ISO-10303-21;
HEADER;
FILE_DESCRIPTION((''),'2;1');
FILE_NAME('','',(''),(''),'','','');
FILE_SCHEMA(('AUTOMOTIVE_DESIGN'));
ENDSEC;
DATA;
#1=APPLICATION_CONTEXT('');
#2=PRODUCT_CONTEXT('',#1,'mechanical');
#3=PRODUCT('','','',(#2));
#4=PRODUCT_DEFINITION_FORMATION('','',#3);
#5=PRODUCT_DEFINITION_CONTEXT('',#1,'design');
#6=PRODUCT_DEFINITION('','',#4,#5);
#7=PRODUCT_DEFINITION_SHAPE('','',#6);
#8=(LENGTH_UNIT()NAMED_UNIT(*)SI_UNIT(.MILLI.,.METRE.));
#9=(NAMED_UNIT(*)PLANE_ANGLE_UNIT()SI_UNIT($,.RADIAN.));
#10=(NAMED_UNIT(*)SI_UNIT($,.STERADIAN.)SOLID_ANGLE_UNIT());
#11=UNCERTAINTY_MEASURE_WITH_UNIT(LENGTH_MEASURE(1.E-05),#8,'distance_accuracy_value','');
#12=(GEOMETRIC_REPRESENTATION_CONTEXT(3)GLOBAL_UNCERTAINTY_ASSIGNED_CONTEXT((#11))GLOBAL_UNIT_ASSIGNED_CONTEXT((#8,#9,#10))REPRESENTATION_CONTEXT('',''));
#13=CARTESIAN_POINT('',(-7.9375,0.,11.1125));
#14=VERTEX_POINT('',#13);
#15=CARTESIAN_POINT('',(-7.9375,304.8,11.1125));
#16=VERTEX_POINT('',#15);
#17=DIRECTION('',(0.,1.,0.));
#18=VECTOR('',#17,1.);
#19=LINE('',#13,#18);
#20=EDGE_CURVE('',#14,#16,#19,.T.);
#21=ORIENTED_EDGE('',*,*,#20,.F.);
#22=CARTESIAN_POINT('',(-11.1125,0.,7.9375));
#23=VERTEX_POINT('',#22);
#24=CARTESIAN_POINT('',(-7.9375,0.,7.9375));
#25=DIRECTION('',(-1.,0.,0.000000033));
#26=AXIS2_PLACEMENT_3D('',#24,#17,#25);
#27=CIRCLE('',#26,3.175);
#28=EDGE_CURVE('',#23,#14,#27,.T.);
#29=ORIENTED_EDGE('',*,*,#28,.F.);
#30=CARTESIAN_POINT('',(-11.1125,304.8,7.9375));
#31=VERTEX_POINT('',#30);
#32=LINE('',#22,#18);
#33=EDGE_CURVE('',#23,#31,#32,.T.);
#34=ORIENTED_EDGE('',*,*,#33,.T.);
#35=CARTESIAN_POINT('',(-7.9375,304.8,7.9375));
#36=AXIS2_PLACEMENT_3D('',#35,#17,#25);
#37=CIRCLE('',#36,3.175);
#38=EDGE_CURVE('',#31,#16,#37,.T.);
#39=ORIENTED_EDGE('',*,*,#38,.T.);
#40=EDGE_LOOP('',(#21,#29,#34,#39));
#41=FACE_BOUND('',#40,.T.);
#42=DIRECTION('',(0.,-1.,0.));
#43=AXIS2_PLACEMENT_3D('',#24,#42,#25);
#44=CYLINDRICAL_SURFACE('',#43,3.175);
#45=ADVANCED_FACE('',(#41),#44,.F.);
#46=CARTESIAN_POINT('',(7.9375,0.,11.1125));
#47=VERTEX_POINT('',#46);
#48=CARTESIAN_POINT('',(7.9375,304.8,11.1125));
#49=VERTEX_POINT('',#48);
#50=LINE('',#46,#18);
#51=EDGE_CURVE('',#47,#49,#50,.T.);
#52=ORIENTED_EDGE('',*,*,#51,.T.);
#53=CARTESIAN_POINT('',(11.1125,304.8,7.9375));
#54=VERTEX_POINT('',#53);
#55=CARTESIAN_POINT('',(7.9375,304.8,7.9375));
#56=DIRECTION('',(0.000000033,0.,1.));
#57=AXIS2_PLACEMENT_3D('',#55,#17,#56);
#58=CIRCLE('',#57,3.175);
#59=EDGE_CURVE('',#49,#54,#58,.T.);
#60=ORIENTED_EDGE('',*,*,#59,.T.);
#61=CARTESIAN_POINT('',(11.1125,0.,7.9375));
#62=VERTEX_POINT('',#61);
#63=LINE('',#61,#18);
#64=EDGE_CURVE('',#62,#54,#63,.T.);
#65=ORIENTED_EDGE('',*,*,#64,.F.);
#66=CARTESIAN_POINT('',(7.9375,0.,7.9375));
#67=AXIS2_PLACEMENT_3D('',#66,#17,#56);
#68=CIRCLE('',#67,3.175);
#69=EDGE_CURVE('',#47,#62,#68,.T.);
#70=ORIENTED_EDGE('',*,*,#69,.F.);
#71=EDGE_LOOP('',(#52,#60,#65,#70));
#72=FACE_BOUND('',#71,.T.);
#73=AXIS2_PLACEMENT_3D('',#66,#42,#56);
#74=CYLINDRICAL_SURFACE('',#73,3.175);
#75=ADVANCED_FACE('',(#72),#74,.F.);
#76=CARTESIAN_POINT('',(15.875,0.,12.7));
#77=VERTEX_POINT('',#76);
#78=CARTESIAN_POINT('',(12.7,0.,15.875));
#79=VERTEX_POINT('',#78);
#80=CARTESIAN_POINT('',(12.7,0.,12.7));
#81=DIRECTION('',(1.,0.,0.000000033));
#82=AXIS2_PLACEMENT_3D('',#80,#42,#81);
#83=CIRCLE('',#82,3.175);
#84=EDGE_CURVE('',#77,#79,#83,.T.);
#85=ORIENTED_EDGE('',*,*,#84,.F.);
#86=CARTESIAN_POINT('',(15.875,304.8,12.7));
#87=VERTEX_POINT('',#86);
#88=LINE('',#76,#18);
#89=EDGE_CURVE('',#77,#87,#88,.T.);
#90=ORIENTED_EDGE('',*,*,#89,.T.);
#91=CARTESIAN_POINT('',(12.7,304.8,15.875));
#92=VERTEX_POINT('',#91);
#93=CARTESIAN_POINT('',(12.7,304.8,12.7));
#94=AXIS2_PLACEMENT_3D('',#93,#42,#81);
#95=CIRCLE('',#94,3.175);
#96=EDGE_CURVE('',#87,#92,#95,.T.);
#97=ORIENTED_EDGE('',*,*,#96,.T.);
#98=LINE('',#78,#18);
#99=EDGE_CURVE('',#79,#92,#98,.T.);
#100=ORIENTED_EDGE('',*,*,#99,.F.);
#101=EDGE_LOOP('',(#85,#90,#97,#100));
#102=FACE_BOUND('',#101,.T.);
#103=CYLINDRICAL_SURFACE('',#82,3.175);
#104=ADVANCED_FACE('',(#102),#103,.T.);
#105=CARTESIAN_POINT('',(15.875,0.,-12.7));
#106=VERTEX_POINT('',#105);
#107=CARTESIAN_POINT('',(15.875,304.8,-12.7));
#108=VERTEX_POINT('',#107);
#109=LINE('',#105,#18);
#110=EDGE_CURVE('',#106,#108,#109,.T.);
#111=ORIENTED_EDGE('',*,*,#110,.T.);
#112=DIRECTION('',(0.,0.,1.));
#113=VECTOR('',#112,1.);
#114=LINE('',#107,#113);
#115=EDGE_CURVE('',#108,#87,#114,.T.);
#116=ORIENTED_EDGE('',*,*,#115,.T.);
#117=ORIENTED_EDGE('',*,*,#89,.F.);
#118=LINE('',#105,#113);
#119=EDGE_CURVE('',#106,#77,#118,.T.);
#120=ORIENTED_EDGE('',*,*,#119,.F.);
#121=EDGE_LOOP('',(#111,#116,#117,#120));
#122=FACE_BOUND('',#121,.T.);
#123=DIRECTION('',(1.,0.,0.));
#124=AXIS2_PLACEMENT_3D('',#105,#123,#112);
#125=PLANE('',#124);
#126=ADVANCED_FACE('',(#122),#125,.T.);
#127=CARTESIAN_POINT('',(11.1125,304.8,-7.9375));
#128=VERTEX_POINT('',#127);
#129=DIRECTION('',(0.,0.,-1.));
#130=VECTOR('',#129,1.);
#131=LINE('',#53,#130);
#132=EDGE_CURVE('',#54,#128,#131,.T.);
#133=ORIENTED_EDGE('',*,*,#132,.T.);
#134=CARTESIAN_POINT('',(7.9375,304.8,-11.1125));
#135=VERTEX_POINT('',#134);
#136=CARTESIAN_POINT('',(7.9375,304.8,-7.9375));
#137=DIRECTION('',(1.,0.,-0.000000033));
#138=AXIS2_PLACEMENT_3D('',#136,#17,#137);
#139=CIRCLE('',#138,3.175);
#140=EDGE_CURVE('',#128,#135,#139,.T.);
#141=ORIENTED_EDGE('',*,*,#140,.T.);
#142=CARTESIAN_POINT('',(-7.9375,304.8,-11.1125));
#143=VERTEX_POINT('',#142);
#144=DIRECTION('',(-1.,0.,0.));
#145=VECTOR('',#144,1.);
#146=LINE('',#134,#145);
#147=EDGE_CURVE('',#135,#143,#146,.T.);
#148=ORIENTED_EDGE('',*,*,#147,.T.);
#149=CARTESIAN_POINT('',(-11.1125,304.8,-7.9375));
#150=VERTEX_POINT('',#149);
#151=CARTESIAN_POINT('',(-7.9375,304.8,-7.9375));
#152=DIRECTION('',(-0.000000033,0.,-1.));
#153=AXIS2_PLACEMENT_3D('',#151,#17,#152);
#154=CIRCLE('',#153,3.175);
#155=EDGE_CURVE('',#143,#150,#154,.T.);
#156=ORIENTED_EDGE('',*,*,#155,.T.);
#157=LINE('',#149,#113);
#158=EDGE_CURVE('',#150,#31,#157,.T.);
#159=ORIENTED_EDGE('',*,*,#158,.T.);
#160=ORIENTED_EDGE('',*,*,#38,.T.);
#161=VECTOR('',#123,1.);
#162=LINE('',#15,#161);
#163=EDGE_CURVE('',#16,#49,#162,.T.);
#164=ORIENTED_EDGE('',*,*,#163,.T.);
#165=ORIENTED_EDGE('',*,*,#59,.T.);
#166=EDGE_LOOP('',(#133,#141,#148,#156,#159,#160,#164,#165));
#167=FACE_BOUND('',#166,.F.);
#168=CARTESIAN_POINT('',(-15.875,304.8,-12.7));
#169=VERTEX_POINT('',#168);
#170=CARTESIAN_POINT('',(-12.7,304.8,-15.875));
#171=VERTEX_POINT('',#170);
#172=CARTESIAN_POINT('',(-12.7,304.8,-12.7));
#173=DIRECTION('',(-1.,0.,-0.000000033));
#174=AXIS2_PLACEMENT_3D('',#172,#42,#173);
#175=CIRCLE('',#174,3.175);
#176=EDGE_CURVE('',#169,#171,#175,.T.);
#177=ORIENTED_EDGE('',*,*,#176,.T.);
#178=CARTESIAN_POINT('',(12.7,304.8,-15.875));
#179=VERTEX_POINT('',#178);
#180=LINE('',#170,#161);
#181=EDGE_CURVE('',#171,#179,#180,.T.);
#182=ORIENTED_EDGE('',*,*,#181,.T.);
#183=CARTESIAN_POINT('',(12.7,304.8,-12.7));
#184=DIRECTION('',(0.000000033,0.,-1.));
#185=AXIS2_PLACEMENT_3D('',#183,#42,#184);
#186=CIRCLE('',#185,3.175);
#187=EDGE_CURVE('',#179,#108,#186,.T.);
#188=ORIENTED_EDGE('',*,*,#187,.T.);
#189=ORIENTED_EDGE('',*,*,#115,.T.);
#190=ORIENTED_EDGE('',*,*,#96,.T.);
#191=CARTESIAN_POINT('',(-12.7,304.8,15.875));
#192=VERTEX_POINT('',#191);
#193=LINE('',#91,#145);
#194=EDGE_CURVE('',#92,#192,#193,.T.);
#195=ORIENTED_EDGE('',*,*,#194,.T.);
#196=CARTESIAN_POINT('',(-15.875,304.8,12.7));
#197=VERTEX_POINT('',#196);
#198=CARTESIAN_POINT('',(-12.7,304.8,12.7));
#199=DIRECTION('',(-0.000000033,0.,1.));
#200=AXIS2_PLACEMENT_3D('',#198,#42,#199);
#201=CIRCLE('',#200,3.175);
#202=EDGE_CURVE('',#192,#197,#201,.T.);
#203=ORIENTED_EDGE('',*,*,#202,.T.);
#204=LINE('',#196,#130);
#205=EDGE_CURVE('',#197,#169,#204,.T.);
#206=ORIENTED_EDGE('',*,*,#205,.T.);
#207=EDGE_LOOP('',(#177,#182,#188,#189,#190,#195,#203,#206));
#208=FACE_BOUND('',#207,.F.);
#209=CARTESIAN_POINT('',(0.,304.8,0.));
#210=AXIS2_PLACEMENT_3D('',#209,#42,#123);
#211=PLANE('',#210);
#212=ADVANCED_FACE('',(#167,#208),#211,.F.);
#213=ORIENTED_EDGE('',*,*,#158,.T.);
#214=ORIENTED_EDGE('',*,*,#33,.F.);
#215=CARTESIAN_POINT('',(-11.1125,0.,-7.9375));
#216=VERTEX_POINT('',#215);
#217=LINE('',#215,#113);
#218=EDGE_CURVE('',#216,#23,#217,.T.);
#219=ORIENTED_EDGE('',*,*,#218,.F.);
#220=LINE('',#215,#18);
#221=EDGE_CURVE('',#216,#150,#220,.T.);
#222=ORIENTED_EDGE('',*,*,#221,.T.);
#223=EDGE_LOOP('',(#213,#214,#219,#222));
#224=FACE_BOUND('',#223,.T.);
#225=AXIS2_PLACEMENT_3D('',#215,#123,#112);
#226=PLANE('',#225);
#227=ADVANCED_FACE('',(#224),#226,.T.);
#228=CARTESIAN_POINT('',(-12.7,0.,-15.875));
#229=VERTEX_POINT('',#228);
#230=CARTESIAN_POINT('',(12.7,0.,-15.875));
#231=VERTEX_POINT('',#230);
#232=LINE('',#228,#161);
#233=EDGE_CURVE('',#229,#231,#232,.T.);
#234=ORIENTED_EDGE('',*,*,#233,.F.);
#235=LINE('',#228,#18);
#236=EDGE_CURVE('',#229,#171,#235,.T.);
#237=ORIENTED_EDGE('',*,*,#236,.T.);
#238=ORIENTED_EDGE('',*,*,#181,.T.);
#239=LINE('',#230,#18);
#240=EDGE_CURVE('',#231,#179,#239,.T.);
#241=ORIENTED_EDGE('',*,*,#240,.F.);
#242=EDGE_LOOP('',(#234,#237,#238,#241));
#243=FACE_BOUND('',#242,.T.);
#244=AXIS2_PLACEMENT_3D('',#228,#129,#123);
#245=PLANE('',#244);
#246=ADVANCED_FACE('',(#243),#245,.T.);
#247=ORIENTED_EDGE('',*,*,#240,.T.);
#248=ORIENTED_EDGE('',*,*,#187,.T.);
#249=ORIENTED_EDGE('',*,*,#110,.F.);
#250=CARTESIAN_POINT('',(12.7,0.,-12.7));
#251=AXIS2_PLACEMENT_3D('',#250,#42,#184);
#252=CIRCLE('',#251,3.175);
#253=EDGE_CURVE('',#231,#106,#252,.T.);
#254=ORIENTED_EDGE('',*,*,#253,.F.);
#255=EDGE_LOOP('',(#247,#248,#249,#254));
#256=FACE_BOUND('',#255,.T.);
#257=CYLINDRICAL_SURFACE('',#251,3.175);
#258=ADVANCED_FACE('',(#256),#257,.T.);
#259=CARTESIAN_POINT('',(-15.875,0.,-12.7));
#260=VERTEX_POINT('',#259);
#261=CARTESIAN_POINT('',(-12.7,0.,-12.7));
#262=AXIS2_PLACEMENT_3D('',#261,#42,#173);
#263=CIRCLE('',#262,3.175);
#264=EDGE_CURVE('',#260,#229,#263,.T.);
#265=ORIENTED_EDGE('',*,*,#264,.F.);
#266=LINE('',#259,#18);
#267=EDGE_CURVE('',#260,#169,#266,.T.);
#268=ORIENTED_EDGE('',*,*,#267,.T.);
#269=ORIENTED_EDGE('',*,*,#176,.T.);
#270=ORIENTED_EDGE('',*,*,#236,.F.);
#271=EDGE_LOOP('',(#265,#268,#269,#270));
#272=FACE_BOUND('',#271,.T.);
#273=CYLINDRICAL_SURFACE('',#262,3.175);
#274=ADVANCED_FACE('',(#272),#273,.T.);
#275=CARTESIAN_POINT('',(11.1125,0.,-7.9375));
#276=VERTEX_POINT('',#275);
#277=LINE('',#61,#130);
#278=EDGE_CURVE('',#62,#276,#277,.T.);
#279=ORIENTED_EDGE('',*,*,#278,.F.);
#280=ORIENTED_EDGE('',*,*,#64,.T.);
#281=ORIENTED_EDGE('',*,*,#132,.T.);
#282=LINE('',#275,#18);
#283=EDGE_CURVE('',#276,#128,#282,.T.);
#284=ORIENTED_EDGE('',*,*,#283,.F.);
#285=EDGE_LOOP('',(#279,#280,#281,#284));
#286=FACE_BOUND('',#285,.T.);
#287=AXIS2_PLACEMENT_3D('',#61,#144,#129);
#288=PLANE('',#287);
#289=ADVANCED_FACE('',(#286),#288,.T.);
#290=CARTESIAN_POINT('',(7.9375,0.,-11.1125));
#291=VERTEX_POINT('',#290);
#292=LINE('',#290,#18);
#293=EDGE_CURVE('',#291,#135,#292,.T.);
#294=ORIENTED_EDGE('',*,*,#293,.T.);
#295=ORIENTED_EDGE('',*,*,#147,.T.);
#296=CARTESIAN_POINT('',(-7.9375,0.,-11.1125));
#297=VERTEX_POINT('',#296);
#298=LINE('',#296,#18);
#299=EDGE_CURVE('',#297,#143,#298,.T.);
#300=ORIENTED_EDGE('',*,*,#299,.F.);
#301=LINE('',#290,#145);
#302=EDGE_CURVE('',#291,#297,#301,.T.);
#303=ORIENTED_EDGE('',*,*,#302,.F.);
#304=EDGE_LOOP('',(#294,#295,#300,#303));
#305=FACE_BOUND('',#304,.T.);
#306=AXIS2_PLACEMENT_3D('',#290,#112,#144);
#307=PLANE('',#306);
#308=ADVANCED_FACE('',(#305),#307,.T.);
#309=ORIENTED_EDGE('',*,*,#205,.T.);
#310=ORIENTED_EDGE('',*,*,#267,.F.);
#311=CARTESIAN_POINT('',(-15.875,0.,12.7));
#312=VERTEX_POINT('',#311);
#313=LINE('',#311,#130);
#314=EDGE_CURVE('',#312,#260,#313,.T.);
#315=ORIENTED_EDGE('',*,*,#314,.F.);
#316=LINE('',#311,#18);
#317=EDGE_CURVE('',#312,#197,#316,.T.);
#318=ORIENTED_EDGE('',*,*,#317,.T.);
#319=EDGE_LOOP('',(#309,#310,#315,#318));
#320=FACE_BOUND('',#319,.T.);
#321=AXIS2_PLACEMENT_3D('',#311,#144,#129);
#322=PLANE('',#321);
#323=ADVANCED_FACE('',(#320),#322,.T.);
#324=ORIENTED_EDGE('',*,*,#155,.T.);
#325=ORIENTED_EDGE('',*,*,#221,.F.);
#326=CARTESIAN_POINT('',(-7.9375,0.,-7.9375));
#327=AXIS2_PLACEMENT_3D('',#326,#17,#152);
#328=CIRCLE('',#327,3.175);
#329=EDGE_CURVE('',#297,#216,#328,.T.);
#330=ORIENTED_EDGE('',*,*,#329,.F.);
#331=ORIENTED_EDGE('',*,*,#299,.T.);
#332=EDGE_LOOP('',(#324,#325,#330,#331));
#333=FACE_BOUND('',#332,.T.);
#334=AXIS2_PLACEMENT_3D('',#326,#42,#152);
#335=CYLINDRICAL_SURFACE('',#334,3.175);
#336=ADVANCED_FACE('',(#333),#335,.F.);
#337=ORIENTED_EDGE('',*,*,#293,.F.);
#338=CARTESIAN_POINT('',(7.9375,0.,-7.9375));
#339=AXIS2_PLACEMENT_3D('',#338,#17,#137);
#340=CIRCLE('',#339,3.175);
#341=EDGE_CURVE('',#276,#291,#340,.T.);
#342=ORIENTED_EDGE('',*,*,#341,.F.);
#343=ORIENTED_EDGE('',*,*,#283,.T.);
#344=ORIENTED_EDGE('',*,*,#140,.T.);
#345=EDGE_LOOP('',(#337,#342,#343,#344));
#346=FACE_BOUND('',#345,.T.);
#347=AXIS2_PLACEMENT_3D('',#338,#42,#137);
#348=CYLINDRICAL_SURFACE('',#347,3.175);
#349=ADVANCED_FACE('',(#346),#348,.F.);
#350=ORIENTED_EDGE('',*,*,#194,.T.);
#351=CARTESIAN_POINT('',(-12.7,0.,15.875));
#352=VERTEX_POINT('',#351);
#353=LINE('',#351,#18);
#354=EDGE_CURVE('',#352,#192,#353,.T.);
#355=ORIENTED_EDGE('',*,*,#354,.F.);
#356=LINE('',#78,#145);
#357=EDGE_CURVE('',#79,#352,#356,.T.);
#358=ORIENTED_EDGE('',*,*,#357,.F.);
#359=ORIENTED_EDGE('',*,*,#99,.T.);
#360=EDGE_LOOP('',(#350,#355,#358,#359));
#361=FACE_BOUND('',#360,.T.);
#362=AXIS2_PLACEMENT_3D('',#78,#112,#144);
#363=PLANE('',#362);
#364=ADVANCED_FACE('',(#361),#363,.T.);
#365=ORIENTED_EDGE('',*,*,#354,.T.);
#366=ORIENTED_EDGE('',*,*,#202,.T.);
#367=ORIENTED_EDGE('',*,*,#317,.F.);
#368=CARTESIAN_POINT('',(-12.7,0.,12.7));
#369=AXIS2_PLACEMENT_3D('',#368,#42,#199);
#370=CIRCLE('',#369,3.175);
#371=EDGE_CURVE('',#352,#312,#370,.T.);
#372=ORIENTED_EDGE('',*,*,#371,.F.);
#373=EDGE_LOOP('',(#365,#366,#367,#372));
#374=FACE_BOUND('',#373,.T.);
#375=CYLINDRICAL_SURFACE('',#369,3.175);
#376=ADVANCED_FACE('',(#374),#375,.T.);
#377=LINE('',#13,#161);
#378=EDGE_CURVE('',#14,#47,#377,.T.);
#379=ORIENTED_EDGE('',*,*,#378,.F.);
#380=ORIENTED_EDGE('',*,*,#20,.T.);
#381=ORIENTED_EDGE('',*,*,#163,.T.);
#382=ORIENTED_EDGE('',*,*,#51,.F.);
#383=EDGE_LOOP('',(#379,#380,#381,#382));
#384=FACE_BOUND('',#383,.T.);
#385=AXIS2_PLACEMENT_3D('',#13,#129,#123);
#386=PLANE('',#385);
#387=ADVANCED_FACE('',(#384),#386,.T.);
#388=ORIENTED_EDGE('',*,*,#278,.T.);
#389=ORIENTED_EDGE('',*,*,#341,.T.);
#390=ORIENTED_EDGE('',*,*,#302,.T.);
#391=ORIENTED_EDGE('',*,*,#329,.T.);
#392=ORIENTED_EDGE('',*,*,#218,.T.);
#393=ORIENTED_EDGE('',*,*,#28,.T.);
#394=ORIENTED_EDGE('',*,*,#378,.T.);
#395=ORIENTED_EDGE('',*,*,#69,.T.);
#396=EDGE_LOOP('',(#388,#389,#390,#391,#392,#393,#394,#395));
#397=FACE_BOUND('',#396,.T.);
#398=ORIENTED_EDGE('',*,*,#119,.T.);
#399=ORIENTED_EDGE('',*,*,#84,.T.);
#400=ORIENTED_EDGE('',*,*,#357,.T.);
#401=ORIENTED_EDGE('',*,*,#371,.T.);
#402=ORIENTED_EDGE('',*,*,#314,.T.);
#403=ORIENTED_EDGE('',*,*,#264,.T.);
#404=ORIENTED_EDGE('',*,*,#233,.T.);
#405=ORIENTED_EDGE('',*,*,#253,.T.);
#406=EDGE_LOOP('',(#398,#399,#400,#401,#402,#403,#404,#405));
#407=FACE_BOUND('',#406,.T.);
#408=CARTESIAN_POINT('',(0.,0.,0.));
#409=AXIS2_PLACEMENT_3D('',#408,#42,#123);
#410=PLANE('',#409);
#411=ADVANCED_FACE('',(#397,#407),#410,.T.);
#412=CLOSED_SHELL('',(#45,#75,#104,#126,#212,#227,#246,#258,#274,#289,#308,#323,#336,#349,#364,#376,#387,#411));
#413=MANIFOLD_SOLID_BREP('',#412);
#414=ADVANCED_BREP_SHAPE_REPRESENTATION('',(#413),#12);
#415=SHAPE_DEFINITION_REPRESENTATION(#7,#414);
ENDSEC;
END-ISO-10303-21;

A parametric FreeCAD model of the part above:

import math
import FreeCAD as App
import Part
import Sketcher
Q = App.Units.Quantity

doc = App.newDocument("Part")
body = doc.addObject("PartDesign::Body", "Body")

sketch1 = body.newObject("Sketcher::SketchObject", "Sketch")
sketch1.AttachmentSupport = (doc.getObject("XZ_Plane"), [""])
sketch1.MapMode = "FlatFace"
sketch1.addGeometry([
    Part.ArcOfCircle(Part.Circle(App.Vector(12.7, 12.7, 0), App.Vector(0, 0, 1), 3.2), math.radians(0), math.radians(90)),
    Part.LineSegment(App.Vector(12.7, 15.9, 0), App.Vector(-12.7, 15.9, 0)),
    Part.ArcOfCircle(Part.Circle(App.Vector(-12.7, 12.7, 0), App.Vector(0, 0, 1), 3.2), math.radians(90), math.radians(180)),
    Part.LineSegment(App.Vector(-15.9, 12.7, 0), App.Vector(-15.9, -12.7, 0)),
    Part.ArcOfCircle(Part.Circle(App.Vector(-12.7, -12.7, 0), App.Vector(0, 0, 1), 3.2), math.radians(-180), math.radians(-90)),
    Part.LineSegment(App.Vector(-12.7, -15.9, 0), App.Vector(12.7, -15.9, 0)),
    Part.ArcOfCircle(Part.Circle(App.Vector(12.7, -12.7, 0), App.Vector(0, 0, 1), 3.2), math.radians(-90), math.radians(0)),
    Part.LineSegment(App.Vector(15.9, -12.7, 0), App.Vector(15.9, 12.7, 0)),
    Part.ArcOfCircle(Part.Circle(App.Vector(-7.9, 7.9, 0), App.Vector(0, 0, 1), 3.2), math.radians(90), math.radians(180)),
    Part.LineSegment(App.Vector(-7.9, 11.1, 0), App.Vector(7.9, 11.1, 0)),
    Part.ArcOfCircle(Part.Circle(App.Vector(7.9, 7.9, 0), App.Vector(0, 0, 1), 3.2), math.radians(0), math.radians(90)),
    Part.LineSegment(App.Vector(11.1, 7.9, 0), App.Vector(11.1, -7.9, 0)),
    Part.ArcOfCircle(Part.Circle(App.Vector(7.9, -7.9, 0), App.Vector(0, 0, 1), 3.2), math.radians(-90), math.radians(0)),
    Part.LineSegment(App.Vector(7.9, -11.1, 0), App.Vector(-7.9, -11.1, 0)),
    Part.ArcOfCircle(Part.Circle(App.Vector(-7.9, -7.9, 0), App.Vector(0, 0, 1), 3.2), math.radians(-180), math.radians(-90)),
    Part.LineSegment(App.Vector(-11.1, -7.9, 0), App.Vector(-11.1, 7.9, 0)),
], False)
sketch1.addConstraint([
    Sketcher.Constraint("Tangent", 0, 2, 1, 1),
    Sketcher.Constraint("Tangent", 1, 2, 2, 1),
    Sketcher.Constraint("Tangent", 2, 2, 3, 1),
    Sketcher.Constraint("Tangent", 3, 2, 4, 1),
    Sketcher.Constraint("Tangent", 4, 2, 5, 1),
    Sketcher.Constraint("Tangent", 5, 2, 6, 1),
    Sketcher.Constraint("Tangent", 6, 2, 7, 1),
    Sketcher.Constraint("Tangent", 7, 2, 0, 1),
    Sketcher.Constraint("Tangent", 8, 1, 9, 1),
    Sketcher.Constraint("Tangent", 9, 2, 10, 2),
    Sketcher.Constraint("Tangent", 10, 1, 11, 1),
    Sketcher.Constraint("Tangent", 11, 2, 12, 2),
    Sketcher.Constraint("Tangent", 12, 1, 13, 1),
    Sketcher.Constraint("Tangent", 13, 2, 14, 2),
    Sketcher.Constraint("Tangent", 14, 1, 15, 1),
    Sketcher.Constraint("Tangent", 15, 2, 8, 2),
    Sketcher.Constraint("Horizontal", 1),
    Sketcher.Constraint("Vertical", 3),
    Sketcher.Constraint("Horizontal", 5),
    Sketcher.Constraint("Vertical", 7),
    Sketcher.Constraint("Horizontal", 9),
    Sketcher.Constraint("Vertical", 11),
    Sketcher.Constraint("Horizontal", 13),
    Sketcher.Constraint("Vertical", 15),
    Sketcher.Constraint("Equal", 0, 2),
    Sketcher.Constraint("Equal", 2, 4),
    Sketcher.Constraint("Equal", 4, 6),
    Sketcher.Constraint("Equal", 6, 8),
    Sketcher.Constraint("Equal", 8, 10),
    Sketcher.Constraint("Equal", 10, 12),
    Sketcher.Constraint("Equal", 12, 14),
    Sketcher.Constraint("Symmetric", 0, 3, 4, 3, -1, 1),
    Sketcher.Constraint("Symmetric", 8, 3, 12, 3, -1, 1),
    Sketcher.Constraint("Equal", 5, 3),
    Sketcher.Constraint("Equal", 13, 11),
    Sketcher.Constraint("DistanceX", 1, 2, 1, 1, Q("1 in")),
    Sketcher.Constraint("Radius", 0, Q("0.125 in")),
    Sketcher.Constraint("DistanceX", 9, 1, 9, 2, Q("0.625 in")),
])
pad1 = body.newObject("PartDesign::Pad", "Pad")
pad1.Profile = sketch1
pad1.Length = Q("12 in")
pad1.Reversed = True

doc.recompute()
